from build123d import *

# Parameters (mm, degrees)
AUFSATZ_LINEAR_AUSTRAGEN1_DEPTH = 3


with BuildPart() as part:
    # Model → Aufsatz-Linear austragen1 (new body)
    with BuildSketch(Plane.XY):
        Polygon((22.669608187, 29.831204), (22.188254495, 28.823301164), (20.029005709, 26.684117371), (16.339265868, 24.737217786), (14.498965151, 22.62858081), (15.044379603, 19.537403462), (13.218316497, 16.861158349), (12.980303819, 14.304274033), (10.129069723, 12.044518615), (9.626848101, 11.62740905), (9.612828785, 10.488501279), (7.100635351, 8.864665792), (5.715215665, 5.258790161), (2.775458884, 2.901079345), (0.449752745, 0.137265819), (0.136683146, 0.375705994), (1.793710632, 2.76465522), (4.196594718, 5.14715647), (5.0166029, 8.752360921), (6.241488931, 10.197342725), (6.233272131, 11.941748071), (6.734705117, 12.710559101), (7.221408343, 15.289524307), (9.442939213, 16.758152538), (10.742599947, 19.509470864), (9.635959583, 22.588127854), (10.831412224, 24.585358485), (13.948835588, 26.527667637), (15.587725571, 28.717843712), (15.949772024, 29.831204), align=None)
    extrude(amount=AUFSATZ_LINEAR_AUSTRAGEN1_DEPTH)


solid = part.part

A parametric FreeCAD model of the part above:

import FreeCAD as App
import Part
import Sketcher

V = App.Vector
Q = App.Units.Quantity

doc = App.newDocument("Part")
body = doc.addObject("PartDesign::Body", "Body")

sketch1 = body.newObject("Sketcher::SketchObject", "Sketch")
sketch1.AttachmentSupport = (doc.getObject("XY_Plane"), [""])
sketch1.MapMode = "FlatFace"
sketch1.addGeometry([
    Part.LineSegment(V(22.19, 28.82, 0), V(22.67, 29.83, 0)),
    Part.LineSegment(V(22.67, 29.83, 0), V(15.95, 29.83, 0)),
    Part.LineSegment(V(15.95, 29.83, 0), V(15.59, 28.72, 0)),
    Part.LineSegment(V(15.59, 28.72, 0), V(13.95, 26.53, 0)),
    Part.LineSegment(V(13.95, 26.53, 0), V(10.83, 24.59, 0)),
    Part.LineSegment(V(10.83, 24.59, 0), V(9.64, 22.59, 0)),
    Part.LineSegment(V(9.64, 22.59, 0), V(10.74, 19.51, 0)),
    Part.LineSegment(V(10.74, 19.51, 0), V(9.44, 16.76, 0)),
    Part.LineSegment(V(9.44, 16.76, 0), V(7.22, 15.29, 0)),
    Part.LineSegment(V(7.22, 15.29, 0), V(6.73, 12.71, 0)),
    Part.LineSegment(V(6.73, 12.71, 0), V(6.23, 11.94, 0)),
    Part.LineSegment(V(6.23, 11.94, 0), V(6.24, 10.2, 0)),
    Part.LineSegment(V(6.24, 10.2, 0), V(5.02, 8.75, 0)),
    Part.LineSegment(V(5.02, 8.75, 0), V(4.2, 5.15, 0)),
    Part.LineSegment(V(4.2, 5.15, 0), V(1.79, 2.76, 0)),
    Part.LineSegment(V(1.79, 2.76, 0), V(0.14, 0.38, 0)),
    Part.LineSegment(V(0.14, 0.38, 0), V(0.45, 0.14, 0)),
    Part.LineSegment(V(0.45, 0.14, 0), V(2.78, 2.9, 0)),
    Part.LineSegment(V(2.78, 2.9, 0), V(5.72, 5.26, 0)),
    Part.LineSegment(V(5.72, 5.26, 0), V(7.1, 8.86, 0)),
    Part.LineSegment(V(7.1, 8.86, 0), V(9.61, 10.49, 0)),
    Part.LineSegment(V(9.61, 10.49, 0), V(9.63, 11.63, 0)),
    Part.LineSegment(V(9.63, 11.63, 0), V(10.13, 12.04, 0)),
    Part.LineSegment(V(10.13, 12.04, 0), V(12.98, 14.3, 0)),
    Part.LineSegment(V(12.98, 14.3, 0), V(13.22, 16.86, 0)),
    Part.LineSegment(V(13.22, 16.86, 0), V(15.04, 19.54, 0)),
    Part.LineSegment(V(15.04, 19.54, 0), V(14.5, 22.63, 0)),
    Part.LineSegment(V(14.5, 22.63, 0), V(16.34, 24.74, 0)),
    Part.LineSegment(V(16.34, 24.74, 0), V(20.03, 26.68, 0)),
    Part.LineSegment(V(20.03, 26.68, 0), V(22.19, 28.82, 0)),
], False)
sketch1.addConstraint([
    Sketcher.Constraint("Coincident", 0, 2, 1, 1),
    Sketcher.Constraint("Coincident", 1, 2, 2, 1),
    Sketcher.Constraint("Coincident", 2, 2, 3, 1),
    Sketcher.Constraint("Coincident", 3, 2, 4, 1),
    Sketcher.Constraint("Coincident", 4, 2, 5, 1),
    Sketcher.Constraint("Coincident", 5, 2, 6, 1),
    Sketcher.Constraint("Coincident", 6, 2, 7, 1),
    Sketcher.Constraint("Coincident", 7, 2, 8, 1),
    Sketcher.Constraint("Coincident", 8, 2, 9, 1),
    Sketcher.Constraint("Coincident", 9, 2, 10, 1),
    Sketcher.Constraint("Coincident", 10, 2, 11, 1),
    Sketcher.Constraint("Coincident", 11, 2, 12, 1),
    Sketcher.Constraint("Coincident", 12, 2, 13, 1),
    Sketcher.Constraint("Coincident", 13, 2, 14, 1),
    Sketcher.Constraint("Coincident", 14, 2, 15, 1),
    Sketcher.Constraint("Coincident", 15, 2, 16, 1),
    Sketcher.Constraint("Coincident", 16, 2, 17, 1),
    Sketcher.Constraint("Coincident", 17, 2, 18, 1),
    Sketcher.Constraint("Coincident", 18, 2, 19, 1),
    Sketcher.Constraint("Coincident", 19, 2, 20, 1),
    Sketcher.Constraint("Coincident", 20, 2, 21, 1),
    Sketcher.Constraint("Coincident", 21, 2, 22, 1),
    Sketcher.Constraint("Coincident", 22, 2, 23, 1),
    Sketcher.Constraint("Coincident", 23, 2, 24, 1),
    Sketcher.Constraint("Coincident", 24, 2, 25, 1),
    Sketcher.Constraint("Coincident", 25, 2, 26, 1),
    Sketcher.Constraint("Coincident", 26, 2, 27, 1),
    Sketcher.Constraint("Coincident", 27, 2, 28, 1),
    Sketcher.Constraint("Coincident", 28, 2, 29, 1),
    Sketcher.Constraint("Coincident", 29, 2, 0, 1),
    Sketcher.Constraint("Horizontal", 1),
    Sketcher.Constraint("DistanceX", -1, 1, 6, 2, Q("10.7426 mm")),
    Sketcher.Constraint("DistanceY", -1, 1, 20, 2, Q("10.488501 mm")),
    Sketcher.Constraint("DistanceY", -1, 1, 29, 2, Q("28.823301 mm")),
    Sketcher.Constraint("DistanceY", 9, 2, 4, 2, Q("11.874799 mm")),
    Sketcher.Constraint("DistanceY", 12, 2, 9, 2, Q("3.958198 mm")),
    Sketcher.Constraint("DistanceY", 14, 2, 13, 2, Q("2.382501 mm")),
    Sketcher.Constraint("DistanceX", 26, 2, 27, 2, Q("1.840301 mm")),
    Sketcher.Constraint("DistanceY", 27, 2, 28, 2, Q("1.9469 mm")),
    Sketcher.Constraint("Distance", 6, Q("3.271511 mm")),
    Sketcher.Constraint("Distance", 7, Q("3.042839 mm")),
    Sketcher.Constraint("Distance", 9, Q("2.624489 mm")),
    Sketcher.Constraint("Distance", 10, Q("0.917881 mm")),
    Sketcher.Constraint("Distance", 14, Q("3.383809 mm")),
    Sketcher.Constraint("Distance", 16, Q("0.393531 mm")),
    Sketcher.Constraint("Distance", 24, Q("2.567938 mm")),
    Sketcher.Constraint("Distance", 27, Q("2.79876 mm")),
    Sketcher.Constraint("Distance", 28, Q("4.171882 mm")),
    Sketcher.Constraint("DistanceX", 1, 2, 1, 1, Q("6.719836 mm")),
    Sketcher.Constraint("DistanceX", -1, 1, 0, 2, Q("22.669608 mm")),
    Sketcher.Constraint("DistanceY", -1, 1, 4, 2, Q("24.585358 mm")),
    Sketcher.Constraint("DistanceX", -1, 1, 5, 2, Q("9.63596 mm")),
    Sketcher.Constraint("DistanceY", -1, 1, 6, 2, Q("19.509471 mm")),
    Sketcher.Constraint("DistanceX", -1, 1, 7, 2, Q("9.442939 mm")),
    Sketcher.Constraint("DistanceX", -1, 1, 8, 2, Q("7.221408 mm")),
    Sketcher.Constraint("DistanceY", -1, 1, 10, 2, Q("11.941748 mm")),
    Sketcher.Constraint("DistanceX", -1, 1, 11, 2, Q("6.241489 mm")),
    Sketcher.Constraint("DistanceX", -1, 1, 14, 2, Q("1.793711 mm")),
    Sketcher.Constraint("DistanceX", -1, 1, 17, 2, Q("2.775459 mm")),
    Sketcher.Constraint("DistanceY", -1, 1, 17, 2, Q("2.901079 mm")),
    Sketcher.Constraint("DistanceY", -1, 1, 18, 2, Q("5.25879 mm")),
    Sketcher.Constraint("DistanceX", -1, 1, 20, 2, Q("9.612829 mm")),
    Sketcher.Constraint("DistanceX", -1, 1, 21, 2, Q("9.626848 mm")),
    Sketcher.Constraint("DistanceY", -1, 1, 21, 2, Q("11.627409 mm")),
    Sketcher.Constraint("DistanceX", -1, 1, 22, 2, Q("10.12907 mm")),
    Sketcher.Constraint("DistanceY", -1, 1, 22, 2, Q("12.044519 mm")),
    Sketcher.Constraint("DistanceY", -1, 1, 24, 2, Q("16.861158 mm")),
    Sketcher.Constraint("DistanceX", -1, 1, 25, 2, Q("15.04438 mm")),
    Sketcher.Constraint("DistanceY", -1, 1, 26, 2, Q("22.628581 mm")),
    Sketcher.Constraint("DistanceY", 2, 2, 1, 2, Q("1.11336 mm")),
    Sketcher.Constraint("DistanceX", 3, 2, 2, 2, Q("1.63889 mm")),
    Sketcher.Constraint("DistanceY", 4, 2, 3, 2, Q("1.942309 mm")),
    Sketcher.Constraint("DistanceX", 4, 2, 1, 2, Q("5.11836 mm")),
    Sketcher.Constraint("DistanceY", 7, 2, 2, 2, Q("11.959691 mm")),
    Sketcher.Constraint("DistanceY", 8, 2, 7, 2, Q("1.468628 mm")),
    Sketcher.Constraint("DistanceY", 11, 2, 8, 2, Q("5.092182 mm")),
    Sketcher.Constraint("DistanceX", 12, 2, 10, 2, Q("1.216669 mm")),
    Sketcher.Constraint("DistanceY", 13, 2, 10, 2, Q("6.794592 mm")),
    Sketcher.Constraint("DistanceY", 15, 2, 14, 2, Q("2.388949 mm")),
    Sketcher.Constraint("DistanceX", 15, 2, 13, 2, Q("4.059912 mm")),
    Sketcher.Constraint("DistanceX", 15, 2, 16, 2, Q("0.31307 mm")),
    Sketcher.Constraint("DistanceX", 13, 2, 18, 2, Q("1.518621 mm")),
    Sketcher.Constraint("DistanceX", 18, 2, 19, 2, Q("1.38542 mm")),
    Sketcher.Constraint("DistanceY", 23, 2, 7, 2, Q("2.453879 mm")),
    Sketcher.Constraint("DistanceX", 8, 2, 24, 2, Q("5.996908 mm")),
    Sketcher.Constraint("DistanceY", 23, 2, 25, 2, Q("5.233129 mm")),
    Sketcher.Constraint("DistanceX", 3, 2, 26, 2, Q("0.55013 mm")),
    Sketcher.Constraint("DistanceX", 28, 2, 29, 2, Q("2.159249 mm")),
    Sketcher.Constraint("Distance", 0, Q("1.116947 mm")),
    Sketcher.Constraint("Distance", 19, Q("3.862865 mm")),
])
pad1 = body.newObject("PartDesign::Pad", "Pad")
pad1.Profile = sketch1
pad1.Length = 3

doc.recompute()
